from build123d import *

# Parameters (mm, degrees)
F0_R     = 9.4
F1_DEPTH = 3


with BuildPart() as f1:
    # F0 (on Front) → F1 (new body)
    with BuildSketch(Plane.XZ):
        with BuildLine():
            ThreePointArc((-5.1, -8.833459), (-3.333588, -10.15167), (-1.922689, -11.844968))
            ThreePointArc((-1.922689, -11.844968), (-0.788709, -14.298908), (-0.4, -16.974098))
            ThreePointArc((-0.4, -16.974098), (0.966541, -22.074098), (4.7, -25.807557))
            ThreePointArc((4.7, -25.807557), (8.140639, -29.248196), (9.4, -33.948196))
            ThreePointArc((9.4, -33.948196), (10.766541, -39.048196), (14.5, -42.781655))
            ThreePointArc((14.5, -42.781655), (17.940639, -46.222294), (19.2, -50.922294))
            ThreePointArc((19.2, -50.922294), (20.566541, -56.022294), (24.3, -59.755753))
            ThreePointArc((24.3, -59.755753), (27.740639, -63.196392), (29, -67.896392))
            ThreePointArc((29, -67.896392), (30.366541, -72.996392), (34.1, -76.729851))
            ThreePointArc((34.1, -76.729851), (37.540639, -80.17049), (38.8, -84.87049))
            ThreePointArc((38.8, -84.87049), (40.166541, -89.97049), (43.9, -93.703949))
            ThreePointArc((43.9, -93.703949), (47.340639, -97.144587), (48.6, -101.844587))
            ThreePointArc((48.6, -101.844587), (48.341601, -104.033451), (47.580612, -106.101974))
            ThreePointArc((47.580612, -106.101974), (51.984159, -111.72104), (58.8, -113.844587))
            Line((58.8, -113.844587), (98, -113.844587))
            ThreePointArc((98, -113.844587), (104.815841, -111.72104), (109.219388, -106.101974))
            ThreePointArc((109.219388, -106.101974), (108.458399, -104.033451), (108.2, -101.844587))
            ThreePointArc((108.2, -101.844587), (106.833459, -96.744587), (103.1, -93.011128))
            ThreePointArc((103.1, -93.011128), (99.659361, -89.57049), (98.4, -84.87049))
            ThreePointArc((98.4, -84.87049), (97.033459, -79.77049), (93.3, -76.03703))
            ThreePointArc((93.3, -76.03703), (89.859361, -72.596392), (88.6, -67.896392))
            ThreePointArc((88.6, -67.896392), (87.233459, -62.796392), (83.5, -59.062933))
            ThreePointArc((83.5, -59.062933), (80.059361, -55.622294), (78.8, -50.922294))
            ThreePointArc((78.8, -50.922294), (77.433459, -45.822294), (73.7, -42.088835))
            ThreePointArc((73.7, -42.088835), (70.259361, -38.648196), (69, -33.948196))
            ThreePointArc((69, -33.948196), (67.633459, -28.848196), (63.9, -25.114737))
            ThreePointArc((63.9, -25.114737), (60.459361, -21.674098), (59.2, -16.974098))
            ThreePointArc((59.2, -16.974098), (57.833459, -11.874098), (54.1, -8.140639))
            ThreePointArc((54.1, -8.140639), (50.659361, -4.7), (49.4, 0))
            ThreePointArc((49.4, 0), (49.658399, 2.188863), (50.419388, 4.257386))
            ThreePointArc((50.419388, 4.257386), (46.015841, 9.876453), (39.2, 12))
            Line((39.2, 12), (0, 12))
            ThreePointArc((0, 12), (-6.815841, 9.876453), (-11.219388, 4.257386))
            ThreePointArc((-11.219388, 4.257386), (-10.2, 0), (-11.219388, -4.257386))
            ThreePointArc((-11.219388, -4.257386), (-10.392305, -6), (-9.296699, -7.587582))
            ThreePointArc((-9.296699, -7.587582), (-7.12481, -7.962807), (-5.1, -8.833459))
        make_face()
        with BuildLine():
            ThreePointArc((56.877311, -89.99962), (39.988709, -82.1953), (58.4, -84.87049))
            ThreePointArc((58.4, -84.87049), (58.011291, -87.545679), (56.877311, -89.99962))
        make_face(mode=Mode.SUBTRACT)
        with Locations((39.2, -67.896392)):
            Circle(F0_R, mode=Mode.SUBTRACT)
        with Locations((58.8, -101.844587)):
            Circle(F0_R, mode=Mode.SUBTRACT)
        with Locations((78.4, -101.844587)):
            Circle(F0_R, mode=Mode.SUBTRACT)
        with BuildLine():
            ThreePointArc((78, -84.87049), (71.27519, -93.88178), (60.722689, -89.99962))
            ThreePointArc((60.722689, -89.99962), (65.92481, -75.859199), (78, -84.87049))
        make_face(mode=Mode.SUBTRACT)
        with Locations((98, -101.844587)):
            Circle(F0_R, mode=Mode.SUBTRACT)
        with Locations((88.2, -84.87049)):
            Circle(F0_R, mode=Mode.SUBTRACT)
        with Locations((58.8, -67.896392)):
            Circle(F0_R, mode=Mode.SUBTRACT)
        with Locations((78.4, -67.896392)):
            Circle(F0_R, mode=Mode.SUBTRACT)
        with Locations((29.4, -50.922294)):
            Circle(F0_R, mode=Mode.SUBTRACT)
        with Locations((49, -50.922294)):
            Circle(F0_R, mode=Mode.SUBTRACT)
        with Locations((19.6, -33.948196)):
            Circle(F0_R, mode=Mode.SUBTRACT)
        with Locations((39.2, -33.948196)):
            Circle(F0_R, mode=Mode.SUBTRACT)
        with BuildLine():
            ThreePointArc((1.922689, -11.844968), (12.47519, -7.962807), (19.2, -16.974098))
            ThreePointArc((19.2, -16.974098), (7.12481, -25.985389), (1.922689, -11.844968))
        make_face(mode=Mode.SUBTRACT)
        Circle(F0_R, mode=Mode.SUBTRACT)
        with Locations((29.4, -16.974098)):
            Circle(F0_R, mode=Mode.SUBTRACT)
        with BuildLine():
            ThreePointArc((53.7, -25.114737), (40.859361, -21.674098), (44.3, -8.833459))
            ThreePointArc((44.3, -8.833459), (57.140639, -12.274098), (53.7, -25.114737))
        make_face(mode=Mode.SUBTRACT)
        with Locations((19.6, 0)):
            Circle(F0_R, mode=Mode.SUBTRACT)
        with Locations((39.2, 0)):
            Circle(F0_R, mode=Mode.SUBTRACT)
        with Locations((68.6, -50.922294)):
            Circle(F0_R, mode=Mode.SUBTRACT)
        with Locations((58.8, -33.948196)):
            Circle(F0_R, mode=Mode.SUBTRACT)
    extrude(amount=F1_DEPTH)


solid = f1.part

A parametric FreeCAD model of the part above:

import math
import FreeCAD as App
import Part
import Sketcher
Q = App.Units.Quantity

doc = App.newDocument("Part")
body = doc.addObject("PartDesign::Body", "Body")

# Sketch on XZ plane
sketch1 = body.newObject("Sketcher::SketchObject", "Sketch")
sketch1.AttachmentSupport = (doc.getObject("XZ_Plane"), [""])
sketch1.MapMode = "FlatFace"
sketch1.addGeometry([
    Part.ArcOfCircle(Part.Circle(App.Vector(-9.799994, -16.974091, 0), App.Vector(0, 0, 1), 9.399991), math.radians(33.069225), math.radians(60.000013)),  # 0
    Part.ArcOfCircle(Part.Circle(App.Vector(-9.799993, -16.974096, 0), App.Vector(0, 0, 1), 9.399993), math.radians(-0.000014), math.radians(33.069249)),  # 1
    Part.ArcOfCircle(Part.Circle(App.Vector(9.8, -16.974098, 0), App.Vector(0, 0, 1), 10.2), math.radians(-179.999998), math.radians(-120.000001)),  # 2
    Part.ArcOfCircle(Part.Circle(App.Vector(0, -33.948196, 0), App.Vector(0, 0, 1), 9.4), math.radians(-0.000003), math.radians(60.000002)),  # 3
    Part.ArcOfCircle(Part.Circle(App.Vector(19.6, -33.948196, 0), App.Vector(0, 0, 1), 10.2), math.radians(-179.999998), math.radians(-120.000001)),  # 4
    Part.ArcOfCircle(Part.Circle(App.Vector(9.8, -50.922294, 0), App.Vector(0, 0, 1), 9.4), math.radians(-0.000003), math.radians(60.000002)),  # 5
    Part.ArcOfCircle(Part.Circle(App.Vector(29.4, -50.922294, 0), App.Vector(0, 0, 1), 10.2), math.radians(-179.999998), math.radians(-120.000001)),  # 6
    Part.ArcOfCircle(Part.Circle(App.Vector(19.6, -67.896392, 0), App.Vector(0, 0, 1), 9.4), math.radians(-0.000003), math.radians(60.000002)),  # 7
    Part.ArcOfCircle(Part.Circle(App.Vector(39.2, -67.896392, 0), App.Vector(0, 0, 1), 10.2), math.radians(-179.999998), math.radians(-120.000001)),  # 8
    Part.ArcOfCircle(Part.Circle(App.Vector(29.4, -84.87049, 0), App.Vector(0, 0, 1), 9.4), math.radians(-0.000003), math.radians(60.000002)),  # 9
    Part.ArcOfCircle(Part.Circle(App.Vector(49, -84.87049, 0), App.Vector(0, 0, 1), 10.2), math.radians(-179.999998), math.radians(-120.000001)),  # 10
    Part.ArcOfCircle(Part.Circle(App.Vector(39.200004, -101.844586, 0), App.Vector(0, 0, 1), 9.399996), math.radians(-0.000008), math.radians(60.000013)),  # 11
    Part.ArcOfCircle(Part.Circle(App.Vector(39.199988, -101.844584, 0), App.Vector(0, 0, 1), 9.400012), math.radians(-26.930747), math.radians(-0.000016)),  # 12
    Part.ArcOfCircle(Part.Circle(App.Vector(58.799999, -101.844588, 0), App.Vector(0, 0, 1), 11.999999), math.radians(-159.219904), math.radians(-89.999994)),  # 13
    Part.LineSegment(App.Vector(58.8, -113.844587, 0), App.Vector(98, -113.844587, 0)),  # 14
    Part.ArcOfCircle(Part.Circle(App.Vector(98.000001, -101.844588, 0), App.Vector(0, 0, 1), 11.999999), math.radians(-90.000006), math.radians(-20.780096)),  # 15
    Part.ArcOfCircle(Part.Circle(App.Vector(117.600012, -101.844584, 0), App.Vector(0, 0, 1), 9.400012), math.radians(-179.999984), math.radians(-153.069253)),  # 16
    Part.ArcOfCircle(Part.Circle(App.Vector(98, -101.844587, 0), App.Vector(0, 0, 1), 10.2), math.radians(0.000002), math.radians(59.999999)),  # 17
    Part.ArcOfCircle(Part.Circle(App.Vector(107.799996, -84.870491, 0), App.Vector(0, 0, 1), 9.399996), math.radians(179.999992), math.radians(240.000013)),  # 18
    Part.ArcOfCircle(Part.Circle(App.Vector(88.199996, -84.870491, 0), App.Vector(0, 0, 1), 10.200004), math.radians(0.000006), math.radians(59.999989)),  # 19
    Part.ArcOfCircle(Part.Circle(App.Vector(97.999996, -67.896393, 0), App.Vector(0, 0, 1), 9.399996), math.radians(179.999992), math.radians(240.000013)),  # 20
    Part.ArcOfCircle(Part.Circle(App.Vector(78.4, -67.896392, 0), App.Vector(0, 0, 1), 10.2), math.radians(0.000002), math.radians(59.999999)),  # 21
    Part.ArcOfCircle(Part.Circle(App.Vector(88.2, -50.922294, 0), App.Vector(0, 0, 1), 9.4), math.radians(179.999997), math.radians(240.000002)),  # 22
    Part.ArcOfCircle(Part.Circle(App.Vector(68.6, -50.922294, 0), App.Vector(0, 0, 1), 10.2), math.radians(0.000002), math.radians(59.999999)),  # 23
    Part.ArcOfCircle(Part.Circle(App.Vector(78.4, -33.948196, 0), App.Vector(0, 0, 1), 9.4), math.radians(179.999997), math.radians(240.000002)),  # 24
    Part.ArcOfCircle(Part.Circle(App.Vector(58.8, -33.948196, 0), App.Vector(0, 0, 1), 10.2), math.radians(0.000002), math.radians(59.999999)),  # 25
    Part.ArcOfCircle(Part.Circle(App.Vector(68.6, -16.974098, 0), App.Vector(0, 0, 1), 9.4), math.radians(179.999997), math.radians(240.000002)),  # 26
    Part.ArcOfCircle(Part.Circle(App.Vector(49, -16.974098, 0), App.Vector(0, 0, 1), 10.2), math.radians(0.000002), math.radians(59.999999)),  # 27
    Part.ArcOfCircle(Part.Circle(App.Vector(58.8, 0, 0), App.Vector(0, 0, 1), 9.4), math.radians(179.999997), math.radians(240.000002)),  # 28
    Part.ArcOfCircle(Part.Circle(App.Vector(58.800012, -0.000004, 0), App.Vector(0, 0, 1), 9.400012), math.radians(153.069253), math.radians(179.999978)),  # 29
    Part.ArcOfCircle(Part.Circle(App.Vector(39.200002, 0.000002, 0), App.Vector(0, 0, 1), 11.999998), math.radians(20.780088), math.radians(90.000007)),  # 30
    Part.LineSegment(App.Vector(39.2, 12, 0), App.Vector(0, 12, 0)),  # 31
    Part.ArcOfCircle(Part.Circle(App.Vector(-0.000002, 0.000002, 0), App.Vector(0, 0, 1), 11.999998), math.radians(89.999993), math.radians(159.219912)),  # 32
    Part.ArcOfCircle(Part.Circle(App.Vector(-19.599997, 0, 0), App.Vector(0, 0, 1), 9.399997), math.radians(-26.93077), math.radians(26.93077)),  # 33
    Part.ArcOfCircle(Part.Circle(App.Vector(0.000013, 0.000006, 0), App.Vector(0, 0, 1), 12.000015), math.radians(-159.219901), math.radians(-140.780114)),  # 34
    Part.ArcOfCircle(Part.Circle(App.Vector(-9.799995, -16.974083, 0), App.Vector(0, 0, 1), 9.399985), math.radians(59.999984), math.radians(86.930792)),  # 35
    Part.ArcOfCircle(Part.Circle(App.Vector(49, -84.87049, 0), App.Vector(0, 0, 1), 9.4), math.radians(-33.069237), math.radians(0.000002)),  # 36
    Part.ArcOfCircle(Part.Circle(App.Vector(49, -84.87049, 0), App.Vector(0, 0, 1), 9.4), math.radians(0.000001), math.radians(326.930764)),  # 37
    Part.Circle(App.Vector(39.2, -67.896392, 0), App.Vector(0, 0, 1), 9.4),  # 38
    Part.Circle(App.Vector(29.4, -50.922294, 0), App.Vector(0, 0, 1), 9.4),  # 39
    Part.Circle(App.Vector(49, -50.922294, 0), App.Vector(0, 0, 1), 9.4),  # 40
    Part.Circle(App.Vector(58.8, -101.844587, 0), App.Vector(0, 0, 1), 9.4),  # 41
    Part.ArcOfCircle(Part.Circle(App.Vector(68.6, -84.87049, 0), App.Vector(0, 0, 1), 9.4), math.radians(-0.000001), math.radians(213.06924)),  # 42
    Part.ArcOfCircle(Part.Circle(App.Vector(68.6, -84.870489, 0), App.Vector(0, 0, 1), 9.4), math.radians(-146.930756), math.radians(-0.000005)),  # 43
    Part.Circle(App.Vector(78.4, -101.844587, 0), App.Vector(0, 0, 1), 9.4),  # 44
    Part.Circle(App.Vector(98, -101.844587, 0), App.Vector(0, 0, 1), 9.4),  # 45
    Part.Circle(App.Vector(88.2, -84.87049, 0), App.Vector(0, 0, 1), 9.4),  # 46
    Part.Circle(App.Vector(58.8, -67.896392, 0), App.Vector(0, 0, 1), 9.4),  # 47
    Part.Circle(App.Vector(68.6, -50.922294, 0), App.Vector(0, 0, 1), 9.4),  # 48
    Part.Circle(App.Vector(78.4, -67.896392, 0), App.Vector(0, 0, 1), 9.4),  # 49
    Part.Circle(App.Vector(19.6, -33.948196, 0), App.Vector(0, 0, 1), 9.4),  # 50
    Part.Circle(App.Vector(39.2, -33.948196, 0), App.Vector(0, 0, 1), 9.4),  # 51
    Part.ArcOfCircle(Part.Circle(App.Vector(9.8, -16.974098, 0), App.Vector(0, 0, 1), 9.4), math.radians(146.93076), math.radians(360.000001)),  # 52
    Part.ArcOfCircle(Part.Circle(App.Vector(9.8, -16.974098, 0), App.Vector(0, 0, 1), 9.4), math.radians(-0.000003), math.radians(146.930764)),  # 53
    Part.Circle(App.Vector(0, 0, 0), App.Vector(0, 0, 1), 9.4),  # 54
    Part.Circle(App.Vector(19.6, 0, 0), App.Vector(0, 0, 1), 9.4),  # 55
    Part.Circle(App.Vector(29.4, -16.974098, 0), App.Vector(0, 0, 1), 9.4),  # 56
    Part.Circle(App.Vector(49, -16.974098, 0), App.Vector(0, 0, 1), 9.4),  # 57
    Part.Circle(App.Vector(39.2, 0, 0), App.Vector(0, 0, 1), 9.4),  # 58
    Part.Circle(App.Vector(58.8, -33.948196, 0), App.Vector(0, 0, 1), 9.4),  # 59
], False)
sketch1.addConstraint([
    Sketcher.Constraint("Tangent", 0, 1, 1, 2),
    Sketcher.Constraint("Tangent", 1, 1, 2, 1),
    Sketcher.Constraint("Tangent", 2, 2, 3, 2),
    Sketcher.Constraint("Tangent", 3, 1, 4, 1),
    Sketcher.Constraint("Tangent", 4, 2, 5, 2),
    Sketcher.Constraint("Tangent", 5, 1, 6, 1),
    Sketcher.Constraint("Tangent", 6, 2, 7, 2),
    Sketcher.Constraint("Tangent", 7, 1, 8, 1),
    Sketcher.Constraint("Tangent", 8, 2, 9, 2),
    Sketcher.Constraint("Tangent", 9, 1, 10, 1),
    Sketcher.Constraint("Tangent", 10, 2, 11, 2),
    Sketcher.Constraint("Tangent", 11, 1, 12, 2),
    Sketcher.Constraint("Coincident", 12, 1, 13, 1),
    Sketcher.Constraint("Tangent", 13, 2, 14, 1),
    Sketcher.Constraint("Tangent", 14, 2, 15, 1),
    Sketcher.Constraint("Coincident", 15, 2, 16, 2),
    Sketcher.Constraint("Tangent", 16, 1, 17, 1),
    Sketcher.Constraint("Tangent", 17, 2, 18, 2),
    Sketcher.Constraint("Tangent", 18, 1, 19, 1),
    Sketcher.Constraint("Tangent", 19, 2, 20, 2),
    Sketcher.Constraint("Tangent", 20, 1, 21, 1),
    Sketcher.Constraint("Tangent", 21, 2, 22, 2),
    Sketcher.Constraint("Tangent", 22, 1, 23, 1),
    Sketcher.Constraint("Tangent", 23, 2, 24, 2),
    Sketcher.Constraint("Tangent", 24, 1, 25, 1),
    Sketcher.Constraint("Tangent", 25, 2, 26, 2),
    Sketcher.Constraint("Tangent", 26, 1, 27, 1),
    Sketcher.Constraint("Tangent", 27, 2, 28, 2),
    Sketcher.Constraint("Tangent", 28, 1, 29, 2),
    Sketcher.Constraint("Coincident", 29, 1, 30, 1),
    Sketcher.Constraint("Tangent", 30, 2, 31, 1),
    Sketcher.Constraint("Tangent", 31, 2, 32, 1),
    Sketcher.Constraint("Coincident", 32, 2, 33, 2),
    Sketcher.Constraint("Coincident", 33, 1, 34, 1),
    Sketcher.Constraint("Coincident", 34, 2, 35, 2),
    Sketcher.Constraint("Tangent", 35, 1, 0, 2),
    Sketcher.Constraint("Tangent", 36, 1, 37, 2),
    Sketcher.Constraint("Coincident", 37, 1, 36, 2),
    Sketcher.Constraint("Tangent", 42, 1, 43, 2),
    Sketcher.Constraint("Coincident", 43, 1, 42, 2),
    Sketcher.Constraint("Tangent", 52, 1, 53, 2),
    Sketcher.Constraint("Coincident", 53, 1, 52, 2),
    Sketcher.Constraint("Horizontal", 14),
    Sketcher.Constraint("Horizontal", 31),
    Sketcher.Constraint("Coincident", 32, 3, -1, 1),
    Sketcher.Constraint("Coincident", 54, 3, -1, 1),
    Sketcher.Constraint("Coincident", 17, 3, 15, 3),
    Sketcher.Constraint("Coincident", 36, 3, 10, 3),
    Sketcher.Constraint("Coincident", 38, 3, 8, 3),
    Sketcher.Constraint("Coincident", 39, 3, 6, 3),
    Sketcher.Constraint("Coincident", 41, 3, 13, 3),
    Sketcher.Constraint("Coincident", 45, 3, 15, 3),
    Sketcher.Constraint("Coincident", 46, 3, 19, 3),
    Sketcher.Constraint("Coincident", 48, 3, 23, 3),
    Sketcher.Constraint("Coincident", 49, 3, 21, 3),
    Sketcher.Constraint("Coincident", 50, 3, 4, 3),
    Sketcher.Constraint("Coincident", 52, 3, 2, 3),
    Sketcher.Constraint("Coincident", 57, 3, 27, 3),
    Sketcher.Constraint("Coincident", 58, 3, 30, 3),
    Sketcher.Constraint("Coincident", 59, 3, 25, 3),
    Sketcher.Constraint("Equal", 2, 4),
    Sketcher.Constraint("Equal", 3, 5),
    Sketcher.Constraint("Equal", 4, 6),
    Sketcher.Constraint("Equal", 5, 7),
    Sketcher.Constraint("Equal", 6, 8),
    Sketcher.Constraint("Equal", 7, 9),
    Sketcher.Constraint("Equal", 8, 10),
    Sketcher.Constraint("Equal", 13, 15),
    Sketcher.Constraint("Equal", 12, 16),
    Sketcher.Constraint("Equal", 10, 17),
    Sketcher.Constraint("Equal", 11, 18),
    Sketcher.Constraint("Equal", 18, 20),
    Sketcher.Constraint("Equal", 17, 21),
    Sketcher.Constraint("Equal", 9, 22),
    Sketcher.Constraint("Equal", 21, 23),
    Sketcher.Constraint("Equal", 22, 24),
    Sketcher.Constraint("Equal", 23, 25),
    Sketcher.Constraint("Equal", 24, 26),
    Sketcher.Constraint("Equal", 25, 27),
    Sketcher.Constraint("Equal", 26, 28),
    Sketcher.Constraint("Equal", 16, 29),
    Sketcher.Constraint("Equal", 15, 30),
    Sketcher.Constraint("Equal", 30, 32),
    Sketcher.Constraint("Equal", 20, 33),
    Sketcher.Constraint("Equal", 28, 36),
    Sketcher.Constraint("Equal", 37, 38),
    Sketcher.Constraint("Equal", 38, 39),
    Sketcher.Constraint("Equal", 39, 40),
    Sketcher.Constraint("Equal", 40, 41),
    Sketcher.Constraint("Equal", 41, 42),
    Sketcher.Constraint("Equal", 43, 44),
    Sketcher.Constraint("Equal", 44, 45),
    Sketcher.Constraint("Equal", 45, 46),
    Sketcher.Constraint("Equal", 46, 47),
    Sketcher.Constraint("Equal", 47, 48),
    Sketcher.Constraint("Equal", 48, 49),
    Sketcher.Constraint("Equal", 49, 50),
    Sketcher.Constraint("Equal", 50, 51),
    Sketcher.Constraint("Equal", 51, 52),
    Sketcher.Constraint("Equal", 53, 54),
    Sketcher.Constraint("Equal", 54, 55),
    Sketcher.Constraint("Equal", 55, 56),
    Sketcher.Constraint("Equal", 56, 57),
    Sketcher.Constraint("Equal", 57, 58),
    Sketcher.Constraint("Equal", 58, 59),
    Sketcher.Constraint("Symmetric", 33, 3, 55, 3, -1, 1),
    Sketcher.Constraint("Symmetric", 0, 3, 2, 3, -2),
    Sketcher.Constraint("Symmetric", 0, 1, 52, 1, -2),
    Sketcher.Constraint("Symmetric", 32, 2, 33, 1, -1),
    Sketcher.Constraint("PointOnObject", 3, 3, -2),
    Sketcher.Constraint("PointOnObject", 28, 3, -1),
    Sketcher.Constraint("PointOnObject", 28, 1, -1),
    Sketcher.Constraint("Horizontal", 1, 3, 2, 3),
    Sketcher.Constraint("Horizontal", 3, 3, 4, 3),
    Sketcher.Constraint("Horizontal", 5, 3, 6, 3),
    Sketcher.Constraint("Horizontal", 7, 3, 8, 3),
    Sketcher.Constraint("Horizontal", 9, 3, 10, 3),
    Sketcher.Constraint("Horizontal", 12, 3, 16, 3),
    Sketcher.Constraint("Horizontal", 10, 3, 18, 3),
    Sketcher.Constraint("Horizontal", 18, 3, 19, 3),
    Sketcher.Constraint("Horizontal", 8, 3, 20, 3),
    Sketcher.Constraint("Horizontal", 20, 3, 21, 3),
    Sketcher.Constraint("Horizontal", 6, 3, 22, 3),
    Sketcher.Constraint("Horizontal", 22, 3, 23, 3),
    Sketcher.Constraint("Horizontal", 4, 3, 24, 3),
    Sketcher.Constraint("Horizontal", 24, 3, 25, 3),
    Sketcher.Constraint("Horizontal", 2, 3, 26, 3),
    Sketcher.Constraint("Horizontal", 26, 3, 27, 3),
    Sketcher.Constraint("Horizontal", 39, 3, 40, 3),
    Sketcher.Constraint("Horizontal", 37, 3, 42, 3),
    Sketcher.Constraint("Horizontal", 41, 3, 44, 3),
    Sketcher.Constraint("Horizontal", 38, 3, 47, 3),
    Sketcher.Constraint("Horizontal", 50, 3, 51, 3),
    Sketcher.Constraint("Horizontal", 53, 3, 56, 3),
    Sketcher.Constraint("Horizontal", 45, 3, 11, 1),
    Sketcher.Constraint("Horizontal", 12, 1, 15, 2),
    Sketcher.Constraint("Horizontal", 11, 1, 16, 1),
    Sketcher.Constraint("Horizontal", 29, 1, 32, 2),
    Sketcher.Constraint("Horizontal", 18, 1, 37, 1),
    Sketcher.Constraint("Horizontal", 37, 1, 42, 1),
    Sketcher.Constraint("Horizontal", 36, 1, 43, 1),
    Sketcher.Constraint("Horizontal", 26, 1, 53, 1),
    Sketcher.Constraint("Vertical", 2, 3, 5, 3),
    Sketcher.Constraint("Vertical", 4, 3, 7, 3),
    Sketcher.Constraint("Vertical", 6, 3, 9, 3),
    Sketcher.Constraint("Vertical", 13, 3, 25, 3),
    Sketcher.Constraint("Vertical", 10, 3, 27, 3),
    Sketcher.Constraint("Vertical", 25, 3, 28, 3),
    Sketcher.Constraint("Vertical", 8, 3, 30, 3),
    Sketcher.Constraint("Vertical", 1, 3, 35, 3),
    Sketcher.Constraint("Vertical", 37, 3, 40, 3),
    Sketcher.Constraint("Vertical", 26, 3, 42, 3),
    Sketcher.Constraint("Vertical", 24, 3, 44, 3),
    Sketcher.Constraint("Vertical", 22, 3, 46, 3),
    Sketcher.Constraint("Vertical", 41, 3, 47, 3),
    Sketcher.Constraint("Vertical", 38, 3, 51, 3),
    Sketcher.Constraint("Vertical", 50, 3, 55, 3),
    Sketcher.Constraint("Vertical", 39, 3, 56, 3),
    Sketcher.Constraint("Equal", 14, 31),
    Sketcher.Constraint("Radius", 13, Q("11.999999 mm")),
    Sketcher.Constraint("Diameter", 38, Q("18.8 mm")),
    Sketcher.Constraint("Radius", 2, Q("10.2 mm")),
    Sketcher.Constraint("DistanceX", 35, 1, -1, 1, Q("5.1 mm")),
    Sketcher.Constraint("Radius", 34, Q("12.000015 mm")),
    Sketcher.Constraint("DistanceX", 34, 2, -1, 1, Q("9.296699 mm")),
    Sketcher.Constraint("DistanceX", 0, 1, -1, 1, Q("1.922689 mm")),
    Sketcher.Constraint("DistanceX", -1, 1, 36, 1, Q("56.877311 mm")),
])
pad1 = body.newObject("PartDesign::Pad", "Pad")
pad1.Profile = sketch1
pad1.Length = 3

doc.recompute()
